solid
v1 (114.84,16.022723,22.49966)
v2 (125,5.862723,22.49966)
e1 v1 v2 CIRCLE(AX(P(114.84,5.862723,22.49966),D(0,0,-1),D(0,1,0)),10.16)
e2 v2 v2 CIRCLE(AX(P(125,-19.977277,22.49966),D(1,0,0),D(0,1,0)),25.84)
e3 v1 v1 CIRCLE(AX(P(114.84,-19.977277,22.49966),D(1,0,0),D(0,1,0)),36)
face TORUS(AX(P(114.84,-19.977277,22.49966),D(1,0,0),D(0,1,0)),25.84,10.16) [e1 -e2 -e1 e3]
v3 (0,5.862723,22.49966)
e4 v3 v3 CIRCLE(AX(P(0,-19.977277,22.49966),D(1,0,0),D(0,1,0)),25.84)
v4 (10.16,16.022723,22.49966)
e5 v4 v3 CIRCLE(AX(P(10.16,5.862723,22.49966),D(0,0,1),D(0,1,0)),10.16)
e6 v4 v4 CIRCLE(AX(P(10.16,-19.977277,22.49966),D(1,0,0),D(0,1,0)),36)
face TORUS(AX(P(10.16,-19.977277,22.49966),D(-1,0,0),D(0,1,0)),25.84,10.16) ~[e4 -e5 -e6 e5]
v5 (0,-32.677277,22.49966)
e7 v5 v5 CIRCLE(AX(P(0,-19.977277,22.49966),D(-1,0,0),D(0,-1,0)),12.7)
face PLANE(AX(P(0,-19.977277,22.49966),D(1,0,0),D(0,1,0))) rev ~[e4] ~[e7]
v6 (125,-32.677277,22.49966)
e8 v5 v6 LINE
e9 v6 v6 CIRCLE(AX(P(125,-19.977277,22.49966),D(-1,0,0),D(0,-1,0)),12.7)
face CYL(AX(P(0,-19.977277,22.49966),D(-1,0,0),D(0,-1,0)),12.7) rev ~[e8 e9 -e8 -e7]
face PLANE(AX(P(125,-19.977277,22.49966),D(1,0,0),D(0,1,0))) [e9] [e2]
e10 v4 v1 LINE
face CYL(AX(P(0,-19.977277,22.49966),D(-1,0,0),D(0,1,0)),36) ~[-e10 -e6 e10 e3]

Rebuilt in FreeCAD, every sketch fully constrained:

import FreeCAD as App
import Part
import Sketcher

V = App.Vector
Q = App.Units.Quantity


def edges_at(feature, points):
    """Names of the edges that pass closest to the given points."""
    edges = feature.Shape.Edges
    near = lambda p: min(range(len(edges)), key=lambda i: edges[i].distToShape(Part.Vertex(*p))[0])
    return sorted({f"Edge{near(p) + 1}" for p in points})

doc = App.newDocument("Part")
body = doc.addObject("PartDesign::Body", "Body")

sketch1 = doc.addObject("Sketcher::SketchObject", "Sketch")
body.addObject(sketch1)
sketch1.AttachmentSupport = (doc.YZ_Plane, [""])
sketch1.MapMode = "FlatFace"
sketch1.addGeometry(Part.Circle(V(-20, 22, 0), V(0, 0, 1), 36), False)
sketch1.addConstraint([
    Sketcher.Constraint("Diameter", 0, 72.0),
    Sketcher.Constraint("DistanceY", -1, 1, 0, 3, 22.49966),
    Sketcher.Constraint("DistanceX", 0, 3, -1, 1, 19.977277),
])
pad1 = doc.addObject("PartDesign::Pad", "Pad")
body.addObject(pad1)
pad1.Profile = sketch1
pad1.Length = 125

sketch2 = doc.addObject("Sketcher::SketchObject", "Sketch001")
body.addObject(sketch2)
sketch2.AttachmentSupport = (doc.YZ_Plane, [""])
sketch2.MapMode = "FlatFace"
sketch2.addGeometry(Part.Circle(V(-20, 22, 0), V(0, 0, 1), 13), False)
sketch2.addConstraint([
    Sketcher.Constraint("Diameter", 0, Q("1 in")),
    Sketcher.Constraint("DistanceY", -1, 1, 0, 3, 22.49966),
    Sketcher.Constraint("DistanceX", 0, 3, -1, 1, 19.977277),
])
pocket1 = doc.addObject("PartDesign::Pocket", "Pocket")
body.addObject(pocket1)
pocket1.Profile = sketch2
pocket1.Length = Q("10 in")
pocket1.Reversed = True
doc.recompute()

fillet = doc.addObject("PartDesign::Fillet", "Fillet")
body.addObject(fillet)
fillet.Base = (pocket1, edges_at(pocket1, [(0, -55.977, 22.5), (125, -55.977, 22.5)]))
fillet.Radius = Q("0.4 in")

doc.recompute()
